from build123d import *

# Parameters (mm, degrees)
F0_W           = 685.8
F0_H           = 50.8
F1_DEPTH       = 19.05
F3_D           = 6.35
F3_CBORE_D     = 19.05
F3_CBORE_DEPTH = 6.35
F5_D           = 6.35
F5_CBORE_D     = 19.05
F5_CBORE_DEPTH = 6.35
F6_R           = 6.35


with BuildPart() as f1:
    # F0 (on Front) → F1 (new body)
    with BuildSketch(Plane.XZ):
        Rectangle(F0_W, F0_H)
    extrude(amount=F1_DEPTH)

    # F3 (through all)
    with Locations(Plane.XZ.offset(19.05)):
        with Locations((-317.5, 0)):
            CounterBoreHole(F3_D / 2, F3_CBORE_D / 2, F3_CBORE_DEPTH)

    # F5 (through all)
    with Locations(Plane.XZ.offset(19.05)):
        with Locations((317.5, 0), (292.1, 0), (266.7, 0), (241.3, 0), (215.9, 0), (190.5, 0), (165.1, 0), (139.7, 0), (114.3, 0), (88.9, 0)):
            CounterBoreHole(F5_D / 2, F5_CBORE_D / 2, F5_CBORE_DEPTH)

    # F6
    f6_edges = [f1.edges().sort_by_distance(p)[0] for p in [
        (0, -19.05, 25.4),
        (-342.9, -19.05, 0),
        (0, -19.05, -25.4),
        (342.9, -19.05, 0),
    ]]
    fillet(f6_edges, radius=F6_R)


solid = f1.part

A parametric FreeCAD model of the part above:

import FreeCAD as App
import Part
import Sketcher
from FreeCAD import Vector
Q = App.Units.Quantity


def edges_at(feature, points):
    """Names of the edges that pass closest to the given points."""
    edges = feature.Shape.Edges
    near = lambda p: min(range(len(edges)), key=lambda i: edges[i].distToShape(Part.Vertex(*p))[0])
    return sorted({f"Edge{near(p) + 1}" for p in points})

doc = App.newDocument("Part")
params = doc.addObject("Spreadsheet::Sheet", "Params")
for row, (alias, value) in enumerate([
    ("sketch1_width", "27 in"),
    ("sketch1_height", "2 in"),
    ("pad1_length", "0.75 in"),
    ("sketch2_diameter", "0.25 in"),
    ("hole_diameter", "0.25 in"),
    ("hole_cbore_diameter", "0.75 in"),
    ("hole_cbore_depth", "0.25 in"),
    ("sketch3_diameter", "0.25 in"),
    ("hole2_diameter", "0.25 in"),
    ("hole2_cbore_diameter", "0.75 in"),
    ("hole2_cbore_depth", "0.25 in"),
    ("fillet_radius", "0.25 in"),
], start=1):
    params.set(f"A{row}", alias)
    params.set(f"B{row}", "=" + value)
    params.setAlias(f"B{row}", alias)

body = doc.addObject("PartDesign::Body", "Body")

# Sketch on XZ plane
sketch1 = body.newObject("Sketcher::SketchObject", "Sketch")
sketch1.AttachmentSupport = (doc.getObject("XZ_Plane"), [""])
sketch1.MapMode = "FlatFace"
sketch1.addGeometry(Part.LineSegment(Vector(-343, 25, 0), Vector(-343, -25, 0)), False)
sketch1.addGeometry(Part.LineSegment(Vector(-343, -25, 0), Vector(343, -25, 0)), False)
sketch1.addGeometry(Part.LineSegment(Vector(343, -25, 0), Vector(343, 25, 0)), False)
sketch1.addGeometry(Part.LineSegment(Vector(343, 25, 0), Vector(-343, 25, 0)), False)
sketch1.addConstraint(Sketcher.Constraint("Coincident", 0, 2, 1, 1))
sketch1.addConstraint(Sketcher.Constraint("Coincident", 1, 2, 2, 1))
sketch1.addConstraint(Sketcher.Constraint("Coincident", 2, 2, 3, 1))
sketch1.addConstraint(Sketcher.Constraint("Coincident", 3, 2, 0, 1))
sketch1.addConstraint(Sketcher.Constraint("Vertical", 0))
sketch1.addConstraint(Sketcher.Constraint("Horizontal", 1))
sketch1.addConstraint(Sketcher.Constraint("Vertical", 2))
sketch1.addConstraint(Sketcher.Constraint("Horizontal", 3))
sketch1.addConstraint(Sketcher.Constraint("Symmetric", 0, 2, 2, 2, -1, 1))
sketch1.addConstraint(Sketcher.Constraint("DistanceX", 1, 1, 1, 2, Q("27 in")))
sketch1.addConstraint(Sketcher.Constraint("DistanceY", 0, 2, 0, 1, Q("2 in")))
sketch1.setExpression("Constraints[9]", "Params.sketch1_width")
sketch1.setExpression("Constraints[10]", "Params.sketch1_height")
pad1 = body.newObject("PartDesign::Pad", "Pad")
pad1.Profile = sketch1
pad1.setExpression("Length", "Params.pad1_length")

# Sketch on XZ plane
sketch2 = body.newObject("Sketcher::SketchObject", "Sketch001")
sketch2.AttachmentSupport = (doc.getObject("XZ_Plane"), [""])
sketch2.MapMode = "FlatFace"
sketch2.AttachmentOffset = App.Placement(Vector(0, 0, 0.75 * 25.4), App.Rotation())
sketch2.addGeometry(Part.Circle(Vector(-317.5, 0, 0), Vector(0, 0, 1), 3.2), False)
sketch2.addConstraint(Sketcher.Constraint("PointOnObject", 0, 3, -1))
sketch2.addConstraint(Sketcher.Constraint("Diameter", 0, Q("0.25 in")))
sketch2.addConstraint(Sketcher.Constraint("DistanceX", 0, 3, -1, 1, Q("12.5 in")))
sketch2.setExpression("Constraints[1]", "Params.sketch2_diameter")
doc.recompute()
hole = body.newObject("PartDesign::Hole", "Hole")
hole.Profile = sketch2
hole.ThreadType = "None"
hole.setExpression("Diameter", "Params.hole_diameter")
hole.DepthType = "ThroughAll"
hole.HoleCutType = "Counterbore"
hole.setExpression("HoleCutDiameter", "Params.hole_cbore_diameter")
hole.setExpression("HoleCutDepth", "Params.hole_cbore_depth")

# Sketch on XZ plane
sketch3 = body.newObject("Sketcher::SketchObject", "Sketch002")
sketch3.AttachmentSupport = (doc.getObject("XZ_Plane"), [""])
sketch3.MapMode = "FlatFace"
sketch3.AttachmentOffset = App.Placement(Vector(0, 0, 0.75 * 25.4), App.Rotation())
sketch3.addGeometry(Part.Circle(Vector(317.5, 0, 0), Vector(0, 0, 1), 3.2), False)
sketch3.addGeometry(Part.Circle(Vector(292.1, 0, 0), Vector(0, 0, 1), 3.2), False)
sketch3.addGeometry(Part.Circle(Vector(266.7, 0, 0), Vector(0, 0, 1), 3.2), False)
sketch3.addGeometry(Part.Circle(Vector(241.3, 0, 0), Vector(0, 0, 1), 3.2), False)
sketch3.addGeometry(Part.Circle(Vector(215.9, 0, 0), Vector(0, 0, 1), 3.2), False)
sketch3.addGeometry(Part.Circle(Vector(190.5, 0, 0), Vector(0, 0, 1), 3.2), False)
sketch3.addGeometry(Part.Circle(Vector(165.1, 0, 0), Vector(0, 0, 1), 3.2), False)
sketch3.addGeometry(Part.Circle(Vector(139.7, 0, 0), Vector(0, 0, 1), 3.2), False)
sketch3.addGeometry(Part.Circle(Vector(114.3, 0, 0), Vector(0, 0, 1), 3.2), False)
sketch3.addGeometry(Part.Circle(Vector(88.9, 0, 0), Vector(0, 0, 1), 3.2), False)
sketch3.addConstraint(Sketcher.Constraint("Equal", 0, 1))
sketch3.addConstraint(Sketcher.Constraint("Equal", 1, 2))
sketch3.addConstraint(Sketcher.Constraint("Equal", 2, 3))
sketch3.addConstraint(Sketcher.Constraint("Equal", 3, 4))
sketch3.addConstraint(Sketcher.Constraint("Equal", 4, 5))
sketch3.addConstraint(Sketcher.Constraint("Equal", 5, 6))
sketch3.addConstraint(Sketcher.Constraint("Equal", 6, 7))
sketch3.addConstraint(Sketcher.Constraint("Equal", 7, 8))
sketch3.addConstraint(Sketcher.Constraint("Equal", 8, 9))
sketch3.addConstraint(Sketcher.Constraint("PointOnObject", 0, 3, -1))
sketch3.addConstraint(Sketcher.Constraint("PointOnObject", 1, 3, -1))
sketch3.addConstraint(Sketcher.Constraint("PointOnObject", 2, 3, -1))
sketch3.addConstraint(Sketcher.Constraint("PointOnObject", 3, 3, -1))
sketch3.addConstraint(Sketcher.Constraint("PointOnObject", 4, 3, -1))
sketch3.addConstraint(Sketcher.Constraint("PointOnObject", 5, 3, -1))
sketch3.addConstraint(Sketcher.Constraint("PointOnObject", 6, 3, -1))
sketch3.addConstraint(Sketcher.Constraint("PointOnObject", 7, 3, -1))
sketch3.addConstraint(Sketcher.Constraint("PointOnObject", 8, 3, -1))
sketch3.addConstraint(Sketcher.Constraint("PointOnObject", 9, 3, -1))
sketch3.addConstraint(Sketcher.Constraint("Diameter", 0, Q("0.25 in")))
sketch3.addConstraint(Sketcher.Constraint("DistanceX", 1, 3, 0, 3, Q("1 in")))
sketch3.addConstraint(Sketcher.Constraint("DistanceX", 2, 3, 1, 3, Q("1 in")))
sketch3.addConstraint(Sketcher.Constraint("DistanceX", 3, 3, 2, 3, Q("1 in")))
sketch3.addConstraint(Sketcher.Constraint("DistanceX", 4, 3, 3, 3, Q("1 in")))
sketch3.addConstraint(Sketcher.Constraint("DistanceX", 5, 3, 4, 3, Q("1 in")))
sketch3.addConstraint(Sketcher.Constraint("DistanceX", 6, 3, 5, 3, Q("1 in")))
sketch3.addConstraint(Sketcher.Constraint("DistanceX", 7, 3, 6, 3, Q("1 in")))
sketch3.addConstraint(Sketcher.Constraint("DistanceX", 8, 3, 7, 3, Q("1 in")))
sketch3.addConstraint(Sketcher.Constraint("DistanceX", 9, 3, 8, 3, Q("1 in")))
sketch3.addConstraint(Sketcher.Constraint("DistanceX", -1, 1, 0, 3, Q("12.5 in")))
sketch3.setExpression("Constraints[19]", "Params.sketch3_diameter")
doc.recompute()
hole2 = body.newObject("PartDesign::Hole", "Hole001")
hole2.Profile = sketch3
hole2.ThreadType = "None"
hole2.setExpression("Diameter", "Params.hole2_diameter")
hole2.DepthType = "ThroughAll"
hole2.HoleCutType = "Counterbore"
hole2.setExpression("HoleCutDiameter", "Params.hole2_cbore_diameter")
hole2.setExpression("HoleCutDepth", "Params.hole2_cbore_depth")
doc.recompute()

fillet = body.newObject("PartDesign::Fillet", "Fillet")
fillet.Base = (hole2, edges_at(hole2, [
    (0, -19.05, 25.4),
    (-342.9, -19.05, 0),
    (0, -19.05, -25.4),
    (342.9, -19.05, 0),
]))
fillet.setExpression("Radius", "Params.fillet_radius")

doc.recompute()
